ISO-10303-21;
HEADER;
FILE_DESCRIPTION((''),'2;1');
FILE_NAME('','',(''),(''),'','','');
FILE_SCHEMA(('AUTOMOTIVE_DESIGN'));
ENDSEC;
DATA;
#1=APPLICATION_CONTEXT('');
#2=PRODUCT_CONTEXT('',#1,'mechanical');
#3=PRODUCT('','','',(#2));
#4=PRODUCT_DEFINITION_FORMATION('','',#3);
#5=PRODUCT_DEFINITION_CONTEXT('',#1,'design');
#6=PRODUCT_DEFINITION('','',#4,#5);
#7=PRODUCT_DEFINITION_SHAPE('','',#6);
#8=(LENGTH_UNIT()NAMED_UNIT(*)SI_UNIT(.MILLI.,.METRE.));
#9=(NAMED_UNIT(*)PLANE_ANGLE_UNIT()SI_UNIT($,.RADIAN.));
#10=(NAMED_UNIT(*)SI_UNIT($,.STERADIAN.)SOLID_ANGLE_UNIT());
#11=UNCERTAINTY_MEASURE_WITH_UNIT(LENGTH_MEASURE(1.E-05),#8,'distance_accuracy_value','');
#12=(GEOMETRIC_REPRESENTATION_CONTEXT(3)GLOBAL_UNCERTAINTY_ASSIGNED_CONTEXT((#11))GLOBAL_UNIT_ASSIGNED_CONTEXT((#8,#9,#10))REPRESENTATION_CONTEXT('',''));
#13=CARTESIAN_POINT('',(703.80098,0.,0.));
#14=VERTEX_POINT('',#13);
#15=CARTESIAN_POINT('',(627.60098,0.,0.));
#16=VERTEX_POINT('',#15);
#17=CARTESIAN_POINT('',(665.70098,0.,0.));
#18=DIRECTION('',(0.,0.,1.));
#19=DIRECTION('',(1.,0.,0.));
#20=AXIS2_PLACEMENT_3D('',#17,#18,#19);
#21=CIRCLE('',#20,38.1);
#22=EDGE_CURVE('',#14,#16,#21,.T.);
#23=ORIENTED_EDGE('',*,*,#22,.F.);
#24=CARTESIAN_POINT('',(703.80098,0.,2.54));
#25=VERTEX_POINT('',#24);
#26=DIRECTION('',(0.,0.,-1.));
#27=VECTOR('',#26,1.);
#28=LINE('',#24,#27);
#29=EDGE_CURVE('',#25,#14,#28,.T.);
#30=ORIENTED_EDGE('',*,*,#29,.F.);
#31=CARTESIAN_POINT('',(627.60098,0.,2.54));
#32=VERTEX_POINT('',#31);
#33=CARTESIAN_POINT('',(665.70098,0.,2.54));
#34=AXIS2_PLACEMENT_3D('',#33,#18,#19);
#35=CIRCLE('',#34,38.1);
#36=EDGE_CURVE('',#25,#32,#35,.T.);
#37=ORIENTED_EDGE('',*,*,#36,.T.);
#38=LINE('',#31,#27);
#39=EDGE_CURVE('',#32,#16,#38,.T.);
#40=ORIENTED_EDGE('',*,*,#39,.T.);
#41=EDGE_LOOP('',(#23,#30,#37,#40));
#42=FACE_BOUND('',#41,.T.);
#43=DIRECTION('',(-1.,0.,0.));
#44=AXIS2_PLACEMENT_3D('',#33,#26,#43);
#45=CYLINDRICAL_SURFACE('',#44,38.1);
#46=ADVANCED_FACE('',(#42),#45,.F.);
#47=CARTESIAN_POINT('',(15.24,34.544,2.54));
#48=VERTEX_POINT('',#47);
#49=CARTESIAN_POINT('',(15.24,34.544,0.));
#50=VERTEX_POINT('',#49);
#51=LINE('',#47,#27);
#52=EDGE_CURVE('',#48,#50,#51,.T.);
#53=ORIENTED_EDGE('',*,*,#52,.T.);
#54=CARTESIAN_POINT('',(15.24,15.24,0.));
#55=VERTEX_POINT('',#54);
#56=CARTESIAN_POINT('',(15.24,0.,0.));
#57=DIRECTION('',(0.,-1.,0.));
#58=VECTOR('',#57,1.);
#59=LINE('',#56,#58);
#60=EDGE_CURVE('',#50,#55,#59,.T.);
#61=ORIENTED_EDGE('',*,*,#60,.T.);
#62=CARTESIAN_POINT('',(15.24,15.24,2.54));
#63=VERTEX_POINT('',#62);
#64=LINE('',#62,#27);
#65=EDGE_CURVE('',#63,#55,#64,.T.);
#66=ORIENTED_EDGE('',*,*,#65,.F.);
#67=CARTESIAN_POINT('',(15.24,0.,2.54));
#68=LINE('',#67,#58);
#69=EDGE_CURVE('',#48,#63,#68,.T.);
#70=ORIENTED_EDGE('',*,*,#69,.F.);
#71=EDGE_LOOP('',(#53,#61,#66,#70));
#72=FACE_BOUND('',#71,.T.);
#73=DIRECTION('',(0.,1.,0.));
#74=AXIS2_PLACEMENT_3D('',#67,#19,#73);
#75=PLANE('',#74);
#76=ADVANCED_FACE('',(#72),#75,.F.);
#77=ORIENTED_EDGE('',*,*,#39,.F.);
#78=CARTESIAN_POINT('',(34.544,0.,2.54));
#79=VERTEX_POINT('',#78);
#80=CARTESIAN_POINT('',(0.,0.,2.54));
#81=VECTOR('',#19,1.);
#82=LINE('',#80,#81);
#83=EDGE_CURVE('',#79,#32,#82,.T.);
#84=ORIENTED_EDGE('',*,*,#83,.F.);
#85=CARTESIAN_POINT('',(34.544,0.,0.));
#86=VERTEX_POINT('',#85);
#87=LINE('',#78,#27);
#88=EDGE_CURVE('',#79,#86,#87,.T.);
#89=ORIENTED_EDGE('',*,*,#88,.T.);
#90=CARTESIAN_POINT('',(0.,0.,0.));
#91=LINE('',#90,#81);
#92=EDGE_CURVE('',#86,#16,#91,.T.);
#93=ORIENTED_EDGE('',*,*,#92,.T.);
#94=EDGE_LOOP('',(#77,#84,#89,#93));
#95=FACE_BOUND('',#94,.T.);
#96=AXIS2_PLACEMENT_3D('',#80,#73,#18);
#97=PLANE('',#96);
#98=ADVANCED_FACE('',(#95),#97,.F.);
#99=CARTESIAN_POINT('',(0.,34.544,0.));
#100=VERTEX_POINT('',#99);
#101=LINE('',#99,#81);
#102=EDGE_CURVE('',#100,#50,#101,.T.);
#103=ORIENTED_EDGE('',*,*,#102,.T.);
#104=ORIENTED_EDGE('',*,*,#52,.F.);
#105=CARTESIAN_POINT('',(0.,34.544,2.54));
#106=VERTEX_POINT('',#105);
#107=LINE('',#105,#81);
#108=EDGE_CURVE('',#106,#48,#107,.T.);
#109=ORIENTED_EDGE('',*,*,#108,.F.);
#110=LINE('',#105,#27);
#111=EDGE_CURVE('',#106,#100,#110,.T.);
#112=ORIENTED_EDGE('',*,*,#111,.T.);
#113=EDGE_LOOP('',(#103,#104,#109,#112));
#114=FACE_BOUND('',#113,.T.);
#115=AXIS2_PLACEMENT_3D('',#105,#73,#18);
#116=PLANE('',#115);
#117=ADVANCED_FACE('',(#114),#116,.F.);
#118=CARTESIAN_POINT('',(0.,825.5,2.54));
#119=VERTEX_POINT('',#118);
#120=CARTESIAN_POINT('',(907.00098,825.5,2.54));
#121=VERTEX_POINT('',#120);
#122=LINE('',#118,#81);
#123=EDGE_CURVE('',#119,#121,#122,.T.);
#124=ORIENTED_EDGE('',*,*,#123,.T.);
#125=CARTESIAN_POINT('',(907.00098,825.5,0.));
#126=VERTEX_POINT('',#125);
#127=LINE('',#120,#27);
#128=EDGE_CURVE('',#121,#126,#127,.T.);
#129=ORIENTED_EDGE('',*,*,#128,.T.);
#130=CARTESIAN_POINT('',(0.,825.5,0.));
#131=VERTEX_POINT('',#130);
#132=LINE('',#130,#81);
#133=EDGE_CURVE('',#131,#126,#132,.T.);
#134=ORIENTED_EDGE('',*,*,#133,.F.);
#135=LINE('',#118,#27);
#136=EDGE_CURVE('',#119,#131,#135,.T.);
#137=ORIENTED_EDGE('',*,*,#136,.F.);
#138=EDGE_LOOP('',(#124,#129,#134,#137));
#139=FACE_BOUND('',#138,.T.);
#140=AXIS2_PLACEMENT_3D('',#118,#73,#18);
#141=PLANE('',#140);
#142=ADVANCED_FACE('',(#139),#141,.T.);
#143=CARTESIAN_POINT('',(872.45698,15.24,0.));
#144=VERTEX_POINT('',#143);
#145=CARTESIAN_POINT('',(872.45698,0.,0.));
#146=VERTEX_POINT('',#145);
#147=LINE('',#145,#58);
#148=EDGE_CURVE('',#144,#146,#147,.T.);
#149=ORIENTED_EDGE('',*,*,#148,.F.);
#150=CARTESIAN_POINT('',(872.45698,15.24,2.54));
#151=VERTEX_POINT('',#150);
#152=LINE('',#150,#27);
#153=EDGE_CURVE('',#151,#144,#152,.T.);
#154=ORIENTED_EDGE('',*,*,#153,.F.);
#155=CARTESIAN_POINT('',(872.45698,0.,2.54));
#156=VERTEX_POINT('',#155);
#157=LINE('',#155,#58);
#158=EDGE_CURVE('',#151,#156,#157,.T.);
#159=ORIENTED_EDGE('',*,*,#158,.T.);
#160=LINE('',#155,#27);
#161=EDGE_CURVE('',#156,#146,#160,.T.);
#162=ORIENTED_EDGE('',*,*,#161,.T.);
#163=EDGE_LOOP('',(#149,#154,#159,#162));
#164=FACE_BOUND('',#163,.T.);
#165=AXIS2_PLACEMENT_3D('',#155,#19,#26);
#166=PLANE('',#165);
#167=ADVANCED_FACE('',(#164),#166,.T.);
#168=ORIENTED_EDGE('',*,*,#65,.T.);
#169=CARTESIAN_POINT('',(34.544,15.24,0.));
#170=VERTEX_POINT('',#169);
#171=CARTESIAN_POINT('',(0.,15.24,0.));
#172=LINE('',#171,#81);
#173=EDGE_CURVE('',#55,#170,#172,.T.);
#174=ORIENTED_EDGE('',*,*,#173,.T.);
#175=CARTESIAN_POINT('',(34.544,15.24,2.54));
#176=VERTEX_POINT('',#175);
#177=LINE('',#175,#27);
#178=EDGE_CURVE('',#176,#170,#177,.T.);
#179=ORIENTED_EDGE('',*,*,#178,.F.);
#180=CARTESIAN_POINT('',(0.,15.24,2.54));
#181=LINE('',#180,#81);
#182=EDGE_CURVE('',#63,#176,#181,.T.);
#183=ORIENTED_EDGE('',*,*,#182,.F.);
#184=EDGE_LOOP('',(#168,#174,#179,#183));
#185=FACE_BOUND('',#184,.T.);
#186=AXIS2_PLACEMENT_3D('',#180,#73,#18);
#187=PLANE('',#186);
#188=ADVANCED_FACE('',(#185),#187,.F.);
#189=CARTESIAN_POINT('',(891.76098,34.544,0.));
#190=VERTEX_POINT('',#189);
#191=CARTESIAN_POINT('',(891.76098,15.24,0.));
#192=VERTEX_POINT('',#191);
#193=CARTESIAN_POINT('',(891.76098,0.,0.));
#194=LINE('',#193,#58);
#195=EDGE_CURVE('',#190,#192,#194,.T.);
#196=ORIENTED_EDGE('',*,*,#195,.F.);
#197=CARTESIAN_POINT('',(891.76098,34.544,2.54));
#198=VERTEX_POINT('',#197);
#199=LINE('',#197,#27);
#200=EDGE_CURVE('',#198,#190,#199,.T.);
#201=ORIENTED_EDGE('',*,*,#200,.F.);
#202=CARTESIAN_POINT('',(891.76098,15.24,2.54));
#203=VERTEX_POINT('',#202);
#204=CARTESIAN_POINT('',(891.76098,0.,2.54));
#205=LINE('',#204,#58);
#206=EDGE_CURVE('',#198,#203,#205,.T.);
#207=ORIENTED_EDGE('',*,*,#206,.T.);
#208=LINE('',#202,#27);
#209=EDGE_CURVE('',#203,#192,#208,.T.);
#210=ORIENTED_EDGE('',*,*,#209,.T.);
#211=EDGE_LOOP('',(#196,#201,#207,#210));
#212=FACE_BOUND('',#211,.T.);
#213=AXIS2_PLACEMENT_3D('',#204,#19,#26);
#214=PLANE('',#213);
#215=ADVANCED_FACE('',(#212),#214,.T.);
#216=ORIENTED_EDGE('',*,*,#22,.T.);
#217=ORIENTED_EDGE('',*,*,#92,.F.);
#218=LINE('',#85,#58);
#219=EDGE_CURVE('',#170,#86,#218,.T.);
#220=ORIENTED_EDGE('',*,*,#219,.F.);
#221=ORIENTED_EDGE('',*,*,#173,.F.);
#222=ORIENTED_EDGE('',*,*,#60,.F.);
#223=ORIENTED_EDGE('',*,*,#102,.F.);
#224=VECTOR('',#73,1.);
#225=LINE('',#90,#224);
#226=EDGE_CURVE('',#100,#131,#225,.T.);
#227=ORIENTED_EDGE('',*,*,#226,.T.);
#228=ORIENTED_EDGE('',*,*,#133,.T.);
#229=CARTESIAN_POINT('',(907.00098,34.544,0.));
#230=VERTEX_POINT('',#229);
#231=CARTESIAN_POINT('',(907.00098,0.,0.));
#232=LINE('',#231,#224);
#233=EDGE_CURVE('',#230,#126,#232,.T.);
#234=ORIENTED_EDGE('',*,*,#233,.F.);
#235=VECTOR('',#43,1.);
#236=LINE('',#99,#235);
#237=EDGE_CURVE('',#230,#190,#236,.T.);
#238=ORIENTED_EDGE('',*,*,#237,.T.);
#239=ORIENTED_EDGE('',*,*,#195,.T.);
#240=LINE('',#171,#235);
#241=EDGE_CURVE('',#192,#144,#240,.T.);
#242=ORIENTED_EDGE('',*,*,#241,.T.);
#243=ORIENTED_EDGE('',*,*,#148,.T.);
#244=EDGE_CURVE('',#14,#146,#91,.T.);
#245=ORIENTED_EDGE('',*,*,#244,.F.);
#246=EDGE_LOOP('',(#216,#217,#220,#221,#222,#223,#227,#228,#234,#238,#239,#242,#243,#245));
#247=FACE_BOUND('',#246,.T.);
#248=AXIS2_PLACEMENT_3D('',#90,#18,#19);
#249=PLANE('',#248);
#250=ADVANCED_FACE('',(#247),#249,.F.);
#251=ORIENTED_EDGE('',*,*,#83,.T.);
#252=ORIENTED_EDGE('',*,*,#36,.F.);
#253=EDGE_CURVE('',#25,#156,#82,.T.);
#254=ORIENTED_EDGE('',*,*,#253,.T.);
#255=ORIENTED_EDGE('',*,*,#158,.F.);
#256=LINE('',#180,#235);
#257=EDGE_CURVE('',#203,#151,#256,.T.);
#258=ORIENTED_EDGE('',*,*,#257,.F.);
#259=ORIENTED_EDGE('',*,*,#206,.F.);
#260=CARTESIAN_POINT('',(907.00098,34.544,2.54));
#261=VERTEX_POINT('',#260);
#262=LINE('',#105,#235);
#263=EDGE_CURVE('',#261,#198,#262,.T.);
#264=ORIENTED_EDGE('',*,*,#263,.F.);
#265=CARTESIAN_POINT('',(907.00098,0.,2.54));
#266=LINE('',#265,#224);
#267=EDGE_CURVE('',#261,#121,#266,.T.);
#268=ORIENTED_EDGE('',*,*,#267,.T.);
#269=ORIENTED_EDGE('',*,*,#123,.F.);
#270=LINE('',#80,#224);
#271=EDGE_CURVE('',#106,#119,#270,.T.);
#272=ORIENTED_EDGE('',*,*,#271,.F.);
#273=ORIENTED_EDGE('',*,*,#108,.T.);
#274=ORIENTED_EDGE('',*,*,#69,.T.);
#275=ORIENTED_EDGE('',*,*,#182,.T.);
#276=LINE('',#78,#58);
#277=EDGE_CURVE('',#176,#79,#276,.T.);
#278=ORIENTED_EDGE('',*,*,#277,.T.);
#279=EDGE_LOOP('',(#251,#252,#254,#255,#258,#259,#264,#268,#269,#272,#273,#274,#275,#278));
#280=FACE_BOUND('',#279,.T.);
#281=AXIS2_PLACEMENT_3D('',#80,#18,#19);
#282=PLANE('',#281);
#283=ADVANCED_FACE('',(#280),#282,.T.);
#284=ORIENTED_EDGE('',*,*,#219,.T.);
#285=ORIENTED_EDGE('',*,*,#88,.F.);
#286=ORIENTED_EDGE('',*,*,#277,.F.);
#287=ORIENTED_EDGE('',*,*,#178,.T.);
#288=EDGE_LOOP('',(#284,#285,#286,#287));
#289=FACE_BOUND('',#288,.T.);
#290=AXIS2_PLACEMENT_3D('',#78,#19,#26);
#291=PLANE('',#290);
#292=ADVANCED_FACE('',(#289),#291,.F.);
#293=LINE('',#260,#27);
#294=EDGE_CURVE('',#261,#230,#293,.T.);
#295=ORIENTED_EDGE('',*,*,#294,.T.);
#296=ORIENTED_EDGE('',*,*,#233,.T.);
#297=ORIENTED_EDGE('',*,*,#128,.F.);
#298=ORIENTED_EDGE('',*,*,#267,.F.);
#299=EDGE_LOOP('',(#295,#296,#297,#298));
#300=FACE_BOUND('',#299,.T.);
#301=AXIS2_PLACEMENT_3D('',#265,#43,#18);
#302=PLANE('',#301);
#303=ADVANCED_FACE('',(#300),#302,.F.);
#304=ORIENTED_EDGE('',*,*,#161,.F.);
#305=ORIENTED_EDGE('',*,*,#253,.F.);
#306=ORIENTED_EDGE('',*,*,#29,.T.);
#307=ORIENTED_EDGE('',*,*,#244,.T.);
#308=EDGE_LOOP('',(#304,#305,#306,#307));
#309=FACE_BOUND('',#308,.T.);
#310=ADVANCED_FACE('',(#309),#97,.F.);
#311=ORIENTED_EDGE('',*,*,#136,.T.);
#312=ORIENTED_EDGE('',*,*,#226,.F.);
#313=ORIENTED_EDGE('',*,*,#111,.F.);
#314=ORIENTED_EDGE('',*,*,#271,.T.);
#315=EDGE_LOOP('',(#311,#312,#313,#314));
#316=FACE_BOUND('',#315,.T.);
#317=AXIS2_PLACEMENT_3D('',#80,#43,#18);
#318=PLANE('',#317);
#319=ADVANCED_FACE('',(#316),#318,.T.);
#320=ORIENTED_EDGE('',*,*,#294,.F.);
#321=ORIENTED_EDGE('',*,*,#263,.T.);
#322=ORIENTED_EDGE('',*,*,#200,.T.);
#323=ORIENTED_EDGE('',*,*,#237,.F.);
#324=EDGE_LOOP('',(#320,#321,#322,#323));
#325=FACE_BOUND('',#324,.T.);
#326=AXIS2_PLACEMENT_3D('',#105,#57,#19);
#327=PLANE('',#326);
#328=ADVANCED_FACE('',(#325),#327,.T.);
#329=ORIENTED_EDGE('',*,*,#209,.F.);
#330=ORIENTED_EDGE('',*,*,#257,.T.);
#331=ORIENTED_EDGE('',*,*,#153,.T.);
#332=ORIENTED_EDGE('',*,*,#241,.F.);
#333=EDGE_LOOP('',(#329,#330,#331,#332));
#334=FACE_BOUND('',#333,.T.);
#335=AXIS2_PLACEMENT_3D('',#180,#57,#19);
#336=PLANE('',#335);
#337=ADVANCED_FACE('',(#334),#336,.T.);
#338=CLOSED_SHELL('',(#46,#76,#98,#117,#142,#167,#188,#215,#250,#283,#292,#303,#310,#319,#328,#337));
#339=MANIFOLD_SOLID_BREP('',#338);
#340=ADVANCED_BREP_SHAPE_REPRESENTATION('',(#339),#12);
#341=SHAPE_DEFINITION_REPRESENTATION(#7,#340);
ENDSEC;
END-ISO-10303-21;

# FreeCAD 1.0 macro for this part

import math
import FreeCAD as App
import Part
import Sketcher
from FreeCAD import Vector
Q = App.Units.Quantity

doc = App.newDocument("Part")
params = doc.addObject("Spreadsheet::Sheet", "Params")
for row, (alias, value) in enumerate([
    ("sketch1_radius", "1.5 in"),
    ("sketch1_width", "0.6 in"),
    ("sketch1_width2", "0.76 in"),
    ("sketch1_height", "31.14 in"),
    ("pad1_length", "0.1 in"),
], start=1):
    params.set(f"A{row}", alias)
    params.set(f"B{row}", "=" + value)
    params.setAlias(f"B{row}", alias)

body = doc.addObject("PartDesign::Body", "Body")

sketch1 = body.newObject("Sketcher::SketchObject", "Sketch")
sketch1.AttachmentSupport = (doc.getObject("XY_Plane"), [""])
sketch1.MapMode = "FlatFace"
sketch1.addGeometry([
    Part.LineSegment(Vector(0, 826, 0), Vector(0, 35, 0)),
    Part.LineSegment(Vector(0, 35, 0), Vector(15, 35, 0)),
    Part.LineSegment(Vector(15, 35, 0), Vector(15, 15, 0)),
    Part.LineSegment(Vector(15, 15, 0), Vector(35, 15, 0)),
    Part.LineSegment(Vector(35, 15, 0), Vector(35, 0, 0)),
    Part.LineSegment(Vector(35, 0, 0), Vector(628, 0, 0)),
    Part.ArcOfCircle(Part.Circle(Vector(666, 0, 0), Vector(0, 0, 1), 38), math.radians(0), math.radians(180)),
    Part.LineSegment(Vector(704, 0, 0), Vector(872, 0, 0)),
    Part.LineSegment(Vector(872, 0, 0), Vector(872, 15, 0)),
    Part.LineSegment(Vector(872, 15, 0), Vector(892, 15, 0)),
    Part.LineSegment(Vector(892, 15, 0), Vector(892, 35, 0)),
    Part.LineSegment(Vector(892, 35, 0), Vector(907, 35, 0)),
    Part.LineSegment(Vector(907, 35, 0), Vector(907, 826, 0)),
    Part.LineSegment(Vector(907, 826, 0), Vector(0, 826, 0)),
], False)
sketch1.addConstraint([
    Sketcher.Constraint("Coincident", 0, 2, 1, 1),
    Sketcher.Constraint("Coincident", 1, 2, 2, 1),
    Sketcher.Constraint("Coincident", 2, 2, 3, 1),
    Sketcher.Constraint("Coincident", 3, 2, 4, 1),
    Sketcher.Constraint("Coincident", 4, 2, 5, 1),
    Sketcher.Constraint("Coincident", 5, 2, 6, 2),
    Sketcher.Constraint("Coincident", 6, 1, 7, 1),
    Sketcher.Constraint("Coincident", 7, 2, 8, 1),
    Sketcher.Constraint("Coincident", 8, 2, 9, 1),
    Sketcher.Constraint("Coincident", 9, 2, 10, 1),
    Sketcher.Constraint("Coincident", 10, 2, 11, 1),
    Sketcher.Constraint("Coincident", 11, 2, 12, 1),
    Sketcher.Constraint("Coincident", 12, 2, 13, 1),
    Sketcher.Constraint("Coincident", 13, 2, 0, 1),
    Sketcher.Constraint("Vertical", 0),
    Sketcher.Constraint("Horizontal", 1),
    Sketcher.Constraint("Vertical", 2),
    Sketcher.Constraint("Horizontal", 3),
    Sketcher.Constraint("Vertical", 4),
    Sketcher.Constraint("Horizontal", 5),
    Sketcher.Constraint("Horizontal", 7),
    Sketcher.Constraint("Vertical", 8),
    Sketcher.Constraint("Horizontal", 9),
    Sketcher.Constraint("Vertical", 10),
    Sketcher.Constraint("Horizontal", 11),
    Sketcher.Constraint("Vertical", 12),
    Sketcher.Constraint("Horizontal", 13),
    Sketcher.Constraint("PointOnObject", 6, 3, -1),
    Sketcher.Constraint("PointOnObject", 0, 2, -2),
    Sketcher.Constraint("PointOnObject", 4, 2, -1),
    Sketcher.Constraint("PointOnObject", 6, 1, -1),
    Sketcher.Constraint("Horizontal", 3, 2, 8, 2),
    Sketcher.Constraint("Horizontal", 1, 2, 10, 2),
    Sketcher.Constraint("Equal", 3, 9),
    Sketcher.Constraint("Equal", 1, 11),
    Sketcher.Constraint("Equal", 9, 2),
    Sketcher.Constraint("Equal", 11, 4),
    Sketcher.Constraint("Radius", 6, Q("1.5 in")),
    Sketcher.Constraint("DistanceX", 1, 1, 1, 2, Q("0.6 in")),
    Sketcher.Constraint("DistanceX", 6, 1, 11, 2, Q("8 in")),
    Sketcher.Constraint("DistanceX", 3, 1, 3, 2, Q("0.76 in")),
    Sketcher.Constraint("DistanceY", 0, 2, 0, 1, Q("31.14 in")),
    Sketcher.Constraint("DistanceX", 5, 1, 5, 2, Q("23.3487 in")),
])
sketch1.setExpression("Constraints[37]", "Params.sketch1_radius")
sketch1.setExpression("Constraints[38]", "Params.sketch1_width")
sketch1.setExpression("Constraints[40]", "Params.sketch1_width2")
sketch1.setExpression("Constraints[41]", "Params.sketch1_height")
pad1 = body.newObject("PartDesign::Pad", "Pad")
pad1.Profile = sketch1
pad1.setExpression("Length", "Params.pad1_length")

doc.recompute()
